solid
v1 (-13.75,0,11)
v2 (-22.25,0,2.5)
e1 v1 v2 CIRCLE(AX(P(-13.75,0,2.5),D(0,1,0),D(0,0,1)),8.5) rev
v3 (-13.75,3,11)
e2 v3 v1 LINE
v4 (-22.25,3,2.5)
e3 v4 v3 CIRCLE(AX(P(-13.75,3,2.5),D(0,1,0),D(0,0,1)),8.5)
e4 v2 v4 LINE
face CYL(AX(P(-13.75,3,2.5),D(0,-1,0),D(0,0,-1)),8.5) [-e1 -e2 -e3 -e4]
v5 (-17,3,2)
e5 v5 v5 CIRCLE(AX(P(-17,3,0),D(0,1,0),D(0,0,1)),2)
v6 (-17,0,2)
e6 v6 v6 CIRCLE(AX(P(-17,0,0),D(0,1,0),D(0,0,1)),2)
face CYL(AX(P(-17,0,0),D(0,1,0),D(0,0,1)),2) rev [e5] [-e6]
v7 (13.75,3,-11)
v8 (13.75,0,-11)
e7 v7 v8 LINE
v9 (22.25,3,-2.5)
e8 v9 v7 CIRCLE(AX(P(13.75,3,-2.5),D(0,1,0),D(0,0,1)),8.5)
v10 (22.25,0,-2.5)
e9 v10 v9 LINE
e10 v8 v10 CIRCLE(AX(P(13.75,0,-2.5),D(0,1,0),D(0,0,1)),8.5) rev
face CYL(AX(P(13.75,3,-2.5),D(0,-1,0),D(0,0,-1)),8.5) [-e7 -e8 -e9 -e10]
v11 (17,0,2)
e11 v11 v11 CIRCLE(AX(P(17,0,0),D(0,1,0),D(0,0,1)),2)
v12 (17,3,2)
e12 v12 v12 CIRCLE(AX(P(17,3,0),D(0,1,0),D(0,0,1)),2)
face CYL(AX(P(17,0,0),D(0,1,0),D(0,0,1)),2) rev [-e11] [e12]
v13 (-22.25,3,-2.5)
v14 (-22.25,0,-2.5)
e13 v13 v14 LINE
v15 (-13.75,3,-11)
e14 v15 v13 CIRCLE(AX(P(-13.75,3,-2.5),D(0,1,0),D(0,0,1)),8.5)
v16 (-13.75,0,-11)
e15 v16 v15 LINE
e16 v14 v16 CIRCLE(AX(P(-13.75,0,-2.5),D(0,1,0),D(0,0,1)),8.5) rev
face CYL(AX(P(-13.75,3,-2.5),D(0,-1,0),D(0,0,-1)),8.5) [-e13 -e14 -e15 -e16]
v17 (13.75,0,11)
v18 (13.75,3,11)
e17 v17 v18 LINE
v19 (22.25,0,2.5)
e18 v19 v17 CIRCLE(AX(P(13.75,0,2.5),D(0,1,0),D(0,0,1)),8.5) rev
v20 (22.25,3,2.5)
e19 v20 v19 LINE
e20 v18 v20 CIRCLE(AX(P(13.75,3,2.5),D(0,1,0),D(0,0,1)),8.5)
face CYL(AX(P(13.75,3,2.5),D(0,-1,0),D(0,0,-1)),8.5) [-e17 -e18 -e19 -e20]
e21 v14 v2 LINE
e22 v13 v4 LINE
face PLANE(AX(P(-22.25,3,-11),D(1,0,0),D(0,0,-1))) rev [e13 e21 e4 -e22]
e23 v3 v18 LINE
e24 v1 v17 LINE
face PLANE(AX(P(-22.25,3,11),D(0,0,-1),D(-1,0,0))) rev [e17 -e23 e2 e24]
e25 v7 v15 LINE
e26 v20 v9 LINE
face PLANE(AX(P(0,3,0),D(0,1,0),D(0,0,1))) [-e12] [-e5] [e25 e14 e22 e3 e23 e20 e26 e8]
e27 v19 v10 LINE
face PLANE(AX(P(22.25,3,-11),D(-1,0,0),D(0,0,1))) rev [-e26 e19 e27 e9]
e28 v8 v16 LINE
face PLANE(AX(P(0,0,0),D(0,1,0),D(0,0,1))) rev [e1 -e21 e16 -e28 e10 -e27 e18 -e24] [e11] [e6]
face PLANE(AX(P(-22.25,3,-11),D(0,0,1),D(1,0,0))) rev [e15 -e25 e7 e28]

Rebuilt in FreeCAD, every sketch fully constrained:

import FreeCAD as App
import Part
import Sketcher


def edges_at(feature, points):
    """Names of the edges that pass closest to the given points."""
    edges = feature.Shape.Edges
    near = lambda p: min(range(len(edges)), key=lambda i: edges[i].distToShape(Part.Vertex(*p))[0])
    return sorted({f"Edge{near(p) + 1}" for p in points})


def add_polygon(sketch, points):
    """Adds a closed chain of lines whose ends are joined by coincident constraints."""
    first, n = sketch.GeometryCount, len(points)
    for a, b in zip(points, points[1:] + points[:1]):
        sketch.addGeometry(Part.LineSegment(App.Vector(*a, 0), App.Vector(*b, 0)), False)
    for i in range(n):
        sketch.addConstraint(Sketcher.Constraint("Coincident", first + i, 2, first + (i + 1) % n, 1))

doc = App.newDocument("Part")
body = doc.addObject("PartDesign::Body", "Body")

sketch1 = body.newObject("Sketcher::SketchObject", "Sketch")
sketch1.AttachmentSupport = (doc.getObject("XZ_Plane"), [""])
sketch1.MapMode = "FlatFace"
add_polygon(sketch1, [(-22, -11), (-22, 11), (22, 11), (22, -11)])
sketch1.addConstraint(Sketcher.Constraint("Vertical", 0))
sketch1.addConstraint(Sketcher.Constraint("Horizontal", 1))
sketch1.addConstraint(Sketcher.Constraint("Vertical", 2))
sketch1.addConstraint(Sketcher.Constraint("Horizontal", 3))
sketch1.addConstraint(Sketcher.Constraint("Symmetric", 0, 2, 2, 2, -1, 1))
sketch1.addConstraint(Sketcher.Constraint("DistanceY", 0, 1, 0, 2, 22.0))
sketch1.addConstraint(Sketcher.Constraint("DistanceX", 1, 1, 1, 2, 44.5))
pad1 = body.newObject("PartDesign::Pad", "Pad")
pad1.Profile = sketch1
pad1.Length = 3
pad1.Reversed = True
doc.recompute()

fillet = body.newObject("PartDesign::Fillet", "Fillet")
fillet.Base = (pad1, edges_at(pad1, [
    (22.25, 1.5, 11),
    (-22.25, 1.5, 11),
    (-22.25, 1.5, -11),
    (22.25, 1.5, -11),
]))
fillet.Radius = 8.5

sketch2 = body.newObject("Sketcher::SketchObject", "Sketch001")
sketch2.AttachmentSupport = (doc.getObject("XZ_Plane"), [""])
sketch2.MapMode = "FlatFace"
sketch2.AttachmentOffset = App.Placement(App.Vector(0, 0, -3), App.Rotation())
sketch2.addGeometry(Part.Circle(App.Vector(-17, 0, 0), App.Vector(0, 0, 1), 2), False)
sketch2.addGeometry(Part.Circle(App.Vector(17, 0, 0), App.Vector(0, 0, 1), 2), False)
sketch2.addConstraint(Sketcher.Constraint("Equal", 0, 1))
sketch2.addConstraint(Sketcher.Constraint("Symmetric", 0, 3, 1, 3, -1, 1))
sketch2.addConstraint(Sketcher.Constraint("PointOnObject", 0, 3, -1))
sketch2.addConstraint(Sketcher.Constraint("Diameter", 0, 4.0))
sketch2.addConstraint(Sketcher.Constraint("DistanceX", 0, 3, -1, 1, 17.0))
pocket1 = body.newObject("PartDesign::Pocket", "Pocket")
pocket1.Profile = sketch2
pocket1.Type = "ThroughAll"
pocket1.Reversed = True

doc.recompute()
